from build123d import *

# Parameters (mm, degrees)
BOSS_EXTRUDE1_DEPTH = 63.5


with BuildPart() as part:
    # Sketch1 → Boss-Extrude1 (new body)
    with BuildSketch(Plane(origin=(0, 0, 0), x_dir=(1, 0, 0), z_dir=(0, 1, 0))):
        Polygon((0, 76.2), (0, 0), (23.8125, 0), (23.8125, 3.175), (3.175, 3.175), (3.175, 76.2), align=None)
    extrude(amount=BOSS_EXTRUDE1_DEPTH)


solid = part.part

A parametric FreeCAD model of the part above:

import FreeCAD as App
import Part
import Sketcher

V = App.Vector
Q = App.Units.Quantity


def add_polygon(sketch, points):
    """Adds a closed chain of lines whose ends are joined by coincident constraints."""
    first, n = sketch.GeometryCount, len(points)
    for a, b in zip(points, points[1:] + points[:1]):
        sketch.addGeometry(Part.LineSegment(App.Vector(*a, 0), App.Vector(*b, 0)), False)
    for i in range(n):
        sketch.addConstraint(Sketcher.Constraint("Coincident", first + i, 2, first + (i + 1) % n, 1))

doc = App.newDocument("Part")
body = doc.addObject("PartDesign::Body", "Body")

# Sketch on XZ plane
sketch1 = body.newObject("Sketcher::SketchObject", "Sketch")
sketch1.AttachmentSupport = (doc.getObject("XZ_Plane"), [""])
sketch1.MapMode = "FlatFace"
add_polygon(sketch1, [(0, -76.2), (0, 0), (23.8, 0), (23.8, -3.2), (3.2, -3.2), (3.2, -76.2)])  # lines 0-5
sketch1.addConstraint([
    Sketcher.Constraint("Vertical", 0),
    Sketcher.Constraint("Horizontal", 1),
    Sketcher.Constraint("Vertical", 2),
    Sketcher.Constraint("Horizontal", 3),
    Sketcher.Constraint("Vertical", 4),
    Sketcher.Constraint("Horizontal", 5),
    Sketcher.Constraint("Coincident", 0, 2, -1, 1),
    Sketcher.Constraint("Equal", 5, 2),
    Sketcher.Constraint("DistanceY", 0, 1, 0, 2, Q("3 in")),
    Sketcher.Constraint("DistanceX", 1, 1, 1, 2, Q("0.9375 in")),
    Sketcher.Constraint("DistanceX", 3, 2, 3, 1, Q("0.8125 in")),
])
pad1 = body.newObject("PartDesign::Pad", "Pad")
pad1.Profile = sketch1
pad1.Length = Q("2.5 in")
pad1.Reversed = True

doc.recompute()
